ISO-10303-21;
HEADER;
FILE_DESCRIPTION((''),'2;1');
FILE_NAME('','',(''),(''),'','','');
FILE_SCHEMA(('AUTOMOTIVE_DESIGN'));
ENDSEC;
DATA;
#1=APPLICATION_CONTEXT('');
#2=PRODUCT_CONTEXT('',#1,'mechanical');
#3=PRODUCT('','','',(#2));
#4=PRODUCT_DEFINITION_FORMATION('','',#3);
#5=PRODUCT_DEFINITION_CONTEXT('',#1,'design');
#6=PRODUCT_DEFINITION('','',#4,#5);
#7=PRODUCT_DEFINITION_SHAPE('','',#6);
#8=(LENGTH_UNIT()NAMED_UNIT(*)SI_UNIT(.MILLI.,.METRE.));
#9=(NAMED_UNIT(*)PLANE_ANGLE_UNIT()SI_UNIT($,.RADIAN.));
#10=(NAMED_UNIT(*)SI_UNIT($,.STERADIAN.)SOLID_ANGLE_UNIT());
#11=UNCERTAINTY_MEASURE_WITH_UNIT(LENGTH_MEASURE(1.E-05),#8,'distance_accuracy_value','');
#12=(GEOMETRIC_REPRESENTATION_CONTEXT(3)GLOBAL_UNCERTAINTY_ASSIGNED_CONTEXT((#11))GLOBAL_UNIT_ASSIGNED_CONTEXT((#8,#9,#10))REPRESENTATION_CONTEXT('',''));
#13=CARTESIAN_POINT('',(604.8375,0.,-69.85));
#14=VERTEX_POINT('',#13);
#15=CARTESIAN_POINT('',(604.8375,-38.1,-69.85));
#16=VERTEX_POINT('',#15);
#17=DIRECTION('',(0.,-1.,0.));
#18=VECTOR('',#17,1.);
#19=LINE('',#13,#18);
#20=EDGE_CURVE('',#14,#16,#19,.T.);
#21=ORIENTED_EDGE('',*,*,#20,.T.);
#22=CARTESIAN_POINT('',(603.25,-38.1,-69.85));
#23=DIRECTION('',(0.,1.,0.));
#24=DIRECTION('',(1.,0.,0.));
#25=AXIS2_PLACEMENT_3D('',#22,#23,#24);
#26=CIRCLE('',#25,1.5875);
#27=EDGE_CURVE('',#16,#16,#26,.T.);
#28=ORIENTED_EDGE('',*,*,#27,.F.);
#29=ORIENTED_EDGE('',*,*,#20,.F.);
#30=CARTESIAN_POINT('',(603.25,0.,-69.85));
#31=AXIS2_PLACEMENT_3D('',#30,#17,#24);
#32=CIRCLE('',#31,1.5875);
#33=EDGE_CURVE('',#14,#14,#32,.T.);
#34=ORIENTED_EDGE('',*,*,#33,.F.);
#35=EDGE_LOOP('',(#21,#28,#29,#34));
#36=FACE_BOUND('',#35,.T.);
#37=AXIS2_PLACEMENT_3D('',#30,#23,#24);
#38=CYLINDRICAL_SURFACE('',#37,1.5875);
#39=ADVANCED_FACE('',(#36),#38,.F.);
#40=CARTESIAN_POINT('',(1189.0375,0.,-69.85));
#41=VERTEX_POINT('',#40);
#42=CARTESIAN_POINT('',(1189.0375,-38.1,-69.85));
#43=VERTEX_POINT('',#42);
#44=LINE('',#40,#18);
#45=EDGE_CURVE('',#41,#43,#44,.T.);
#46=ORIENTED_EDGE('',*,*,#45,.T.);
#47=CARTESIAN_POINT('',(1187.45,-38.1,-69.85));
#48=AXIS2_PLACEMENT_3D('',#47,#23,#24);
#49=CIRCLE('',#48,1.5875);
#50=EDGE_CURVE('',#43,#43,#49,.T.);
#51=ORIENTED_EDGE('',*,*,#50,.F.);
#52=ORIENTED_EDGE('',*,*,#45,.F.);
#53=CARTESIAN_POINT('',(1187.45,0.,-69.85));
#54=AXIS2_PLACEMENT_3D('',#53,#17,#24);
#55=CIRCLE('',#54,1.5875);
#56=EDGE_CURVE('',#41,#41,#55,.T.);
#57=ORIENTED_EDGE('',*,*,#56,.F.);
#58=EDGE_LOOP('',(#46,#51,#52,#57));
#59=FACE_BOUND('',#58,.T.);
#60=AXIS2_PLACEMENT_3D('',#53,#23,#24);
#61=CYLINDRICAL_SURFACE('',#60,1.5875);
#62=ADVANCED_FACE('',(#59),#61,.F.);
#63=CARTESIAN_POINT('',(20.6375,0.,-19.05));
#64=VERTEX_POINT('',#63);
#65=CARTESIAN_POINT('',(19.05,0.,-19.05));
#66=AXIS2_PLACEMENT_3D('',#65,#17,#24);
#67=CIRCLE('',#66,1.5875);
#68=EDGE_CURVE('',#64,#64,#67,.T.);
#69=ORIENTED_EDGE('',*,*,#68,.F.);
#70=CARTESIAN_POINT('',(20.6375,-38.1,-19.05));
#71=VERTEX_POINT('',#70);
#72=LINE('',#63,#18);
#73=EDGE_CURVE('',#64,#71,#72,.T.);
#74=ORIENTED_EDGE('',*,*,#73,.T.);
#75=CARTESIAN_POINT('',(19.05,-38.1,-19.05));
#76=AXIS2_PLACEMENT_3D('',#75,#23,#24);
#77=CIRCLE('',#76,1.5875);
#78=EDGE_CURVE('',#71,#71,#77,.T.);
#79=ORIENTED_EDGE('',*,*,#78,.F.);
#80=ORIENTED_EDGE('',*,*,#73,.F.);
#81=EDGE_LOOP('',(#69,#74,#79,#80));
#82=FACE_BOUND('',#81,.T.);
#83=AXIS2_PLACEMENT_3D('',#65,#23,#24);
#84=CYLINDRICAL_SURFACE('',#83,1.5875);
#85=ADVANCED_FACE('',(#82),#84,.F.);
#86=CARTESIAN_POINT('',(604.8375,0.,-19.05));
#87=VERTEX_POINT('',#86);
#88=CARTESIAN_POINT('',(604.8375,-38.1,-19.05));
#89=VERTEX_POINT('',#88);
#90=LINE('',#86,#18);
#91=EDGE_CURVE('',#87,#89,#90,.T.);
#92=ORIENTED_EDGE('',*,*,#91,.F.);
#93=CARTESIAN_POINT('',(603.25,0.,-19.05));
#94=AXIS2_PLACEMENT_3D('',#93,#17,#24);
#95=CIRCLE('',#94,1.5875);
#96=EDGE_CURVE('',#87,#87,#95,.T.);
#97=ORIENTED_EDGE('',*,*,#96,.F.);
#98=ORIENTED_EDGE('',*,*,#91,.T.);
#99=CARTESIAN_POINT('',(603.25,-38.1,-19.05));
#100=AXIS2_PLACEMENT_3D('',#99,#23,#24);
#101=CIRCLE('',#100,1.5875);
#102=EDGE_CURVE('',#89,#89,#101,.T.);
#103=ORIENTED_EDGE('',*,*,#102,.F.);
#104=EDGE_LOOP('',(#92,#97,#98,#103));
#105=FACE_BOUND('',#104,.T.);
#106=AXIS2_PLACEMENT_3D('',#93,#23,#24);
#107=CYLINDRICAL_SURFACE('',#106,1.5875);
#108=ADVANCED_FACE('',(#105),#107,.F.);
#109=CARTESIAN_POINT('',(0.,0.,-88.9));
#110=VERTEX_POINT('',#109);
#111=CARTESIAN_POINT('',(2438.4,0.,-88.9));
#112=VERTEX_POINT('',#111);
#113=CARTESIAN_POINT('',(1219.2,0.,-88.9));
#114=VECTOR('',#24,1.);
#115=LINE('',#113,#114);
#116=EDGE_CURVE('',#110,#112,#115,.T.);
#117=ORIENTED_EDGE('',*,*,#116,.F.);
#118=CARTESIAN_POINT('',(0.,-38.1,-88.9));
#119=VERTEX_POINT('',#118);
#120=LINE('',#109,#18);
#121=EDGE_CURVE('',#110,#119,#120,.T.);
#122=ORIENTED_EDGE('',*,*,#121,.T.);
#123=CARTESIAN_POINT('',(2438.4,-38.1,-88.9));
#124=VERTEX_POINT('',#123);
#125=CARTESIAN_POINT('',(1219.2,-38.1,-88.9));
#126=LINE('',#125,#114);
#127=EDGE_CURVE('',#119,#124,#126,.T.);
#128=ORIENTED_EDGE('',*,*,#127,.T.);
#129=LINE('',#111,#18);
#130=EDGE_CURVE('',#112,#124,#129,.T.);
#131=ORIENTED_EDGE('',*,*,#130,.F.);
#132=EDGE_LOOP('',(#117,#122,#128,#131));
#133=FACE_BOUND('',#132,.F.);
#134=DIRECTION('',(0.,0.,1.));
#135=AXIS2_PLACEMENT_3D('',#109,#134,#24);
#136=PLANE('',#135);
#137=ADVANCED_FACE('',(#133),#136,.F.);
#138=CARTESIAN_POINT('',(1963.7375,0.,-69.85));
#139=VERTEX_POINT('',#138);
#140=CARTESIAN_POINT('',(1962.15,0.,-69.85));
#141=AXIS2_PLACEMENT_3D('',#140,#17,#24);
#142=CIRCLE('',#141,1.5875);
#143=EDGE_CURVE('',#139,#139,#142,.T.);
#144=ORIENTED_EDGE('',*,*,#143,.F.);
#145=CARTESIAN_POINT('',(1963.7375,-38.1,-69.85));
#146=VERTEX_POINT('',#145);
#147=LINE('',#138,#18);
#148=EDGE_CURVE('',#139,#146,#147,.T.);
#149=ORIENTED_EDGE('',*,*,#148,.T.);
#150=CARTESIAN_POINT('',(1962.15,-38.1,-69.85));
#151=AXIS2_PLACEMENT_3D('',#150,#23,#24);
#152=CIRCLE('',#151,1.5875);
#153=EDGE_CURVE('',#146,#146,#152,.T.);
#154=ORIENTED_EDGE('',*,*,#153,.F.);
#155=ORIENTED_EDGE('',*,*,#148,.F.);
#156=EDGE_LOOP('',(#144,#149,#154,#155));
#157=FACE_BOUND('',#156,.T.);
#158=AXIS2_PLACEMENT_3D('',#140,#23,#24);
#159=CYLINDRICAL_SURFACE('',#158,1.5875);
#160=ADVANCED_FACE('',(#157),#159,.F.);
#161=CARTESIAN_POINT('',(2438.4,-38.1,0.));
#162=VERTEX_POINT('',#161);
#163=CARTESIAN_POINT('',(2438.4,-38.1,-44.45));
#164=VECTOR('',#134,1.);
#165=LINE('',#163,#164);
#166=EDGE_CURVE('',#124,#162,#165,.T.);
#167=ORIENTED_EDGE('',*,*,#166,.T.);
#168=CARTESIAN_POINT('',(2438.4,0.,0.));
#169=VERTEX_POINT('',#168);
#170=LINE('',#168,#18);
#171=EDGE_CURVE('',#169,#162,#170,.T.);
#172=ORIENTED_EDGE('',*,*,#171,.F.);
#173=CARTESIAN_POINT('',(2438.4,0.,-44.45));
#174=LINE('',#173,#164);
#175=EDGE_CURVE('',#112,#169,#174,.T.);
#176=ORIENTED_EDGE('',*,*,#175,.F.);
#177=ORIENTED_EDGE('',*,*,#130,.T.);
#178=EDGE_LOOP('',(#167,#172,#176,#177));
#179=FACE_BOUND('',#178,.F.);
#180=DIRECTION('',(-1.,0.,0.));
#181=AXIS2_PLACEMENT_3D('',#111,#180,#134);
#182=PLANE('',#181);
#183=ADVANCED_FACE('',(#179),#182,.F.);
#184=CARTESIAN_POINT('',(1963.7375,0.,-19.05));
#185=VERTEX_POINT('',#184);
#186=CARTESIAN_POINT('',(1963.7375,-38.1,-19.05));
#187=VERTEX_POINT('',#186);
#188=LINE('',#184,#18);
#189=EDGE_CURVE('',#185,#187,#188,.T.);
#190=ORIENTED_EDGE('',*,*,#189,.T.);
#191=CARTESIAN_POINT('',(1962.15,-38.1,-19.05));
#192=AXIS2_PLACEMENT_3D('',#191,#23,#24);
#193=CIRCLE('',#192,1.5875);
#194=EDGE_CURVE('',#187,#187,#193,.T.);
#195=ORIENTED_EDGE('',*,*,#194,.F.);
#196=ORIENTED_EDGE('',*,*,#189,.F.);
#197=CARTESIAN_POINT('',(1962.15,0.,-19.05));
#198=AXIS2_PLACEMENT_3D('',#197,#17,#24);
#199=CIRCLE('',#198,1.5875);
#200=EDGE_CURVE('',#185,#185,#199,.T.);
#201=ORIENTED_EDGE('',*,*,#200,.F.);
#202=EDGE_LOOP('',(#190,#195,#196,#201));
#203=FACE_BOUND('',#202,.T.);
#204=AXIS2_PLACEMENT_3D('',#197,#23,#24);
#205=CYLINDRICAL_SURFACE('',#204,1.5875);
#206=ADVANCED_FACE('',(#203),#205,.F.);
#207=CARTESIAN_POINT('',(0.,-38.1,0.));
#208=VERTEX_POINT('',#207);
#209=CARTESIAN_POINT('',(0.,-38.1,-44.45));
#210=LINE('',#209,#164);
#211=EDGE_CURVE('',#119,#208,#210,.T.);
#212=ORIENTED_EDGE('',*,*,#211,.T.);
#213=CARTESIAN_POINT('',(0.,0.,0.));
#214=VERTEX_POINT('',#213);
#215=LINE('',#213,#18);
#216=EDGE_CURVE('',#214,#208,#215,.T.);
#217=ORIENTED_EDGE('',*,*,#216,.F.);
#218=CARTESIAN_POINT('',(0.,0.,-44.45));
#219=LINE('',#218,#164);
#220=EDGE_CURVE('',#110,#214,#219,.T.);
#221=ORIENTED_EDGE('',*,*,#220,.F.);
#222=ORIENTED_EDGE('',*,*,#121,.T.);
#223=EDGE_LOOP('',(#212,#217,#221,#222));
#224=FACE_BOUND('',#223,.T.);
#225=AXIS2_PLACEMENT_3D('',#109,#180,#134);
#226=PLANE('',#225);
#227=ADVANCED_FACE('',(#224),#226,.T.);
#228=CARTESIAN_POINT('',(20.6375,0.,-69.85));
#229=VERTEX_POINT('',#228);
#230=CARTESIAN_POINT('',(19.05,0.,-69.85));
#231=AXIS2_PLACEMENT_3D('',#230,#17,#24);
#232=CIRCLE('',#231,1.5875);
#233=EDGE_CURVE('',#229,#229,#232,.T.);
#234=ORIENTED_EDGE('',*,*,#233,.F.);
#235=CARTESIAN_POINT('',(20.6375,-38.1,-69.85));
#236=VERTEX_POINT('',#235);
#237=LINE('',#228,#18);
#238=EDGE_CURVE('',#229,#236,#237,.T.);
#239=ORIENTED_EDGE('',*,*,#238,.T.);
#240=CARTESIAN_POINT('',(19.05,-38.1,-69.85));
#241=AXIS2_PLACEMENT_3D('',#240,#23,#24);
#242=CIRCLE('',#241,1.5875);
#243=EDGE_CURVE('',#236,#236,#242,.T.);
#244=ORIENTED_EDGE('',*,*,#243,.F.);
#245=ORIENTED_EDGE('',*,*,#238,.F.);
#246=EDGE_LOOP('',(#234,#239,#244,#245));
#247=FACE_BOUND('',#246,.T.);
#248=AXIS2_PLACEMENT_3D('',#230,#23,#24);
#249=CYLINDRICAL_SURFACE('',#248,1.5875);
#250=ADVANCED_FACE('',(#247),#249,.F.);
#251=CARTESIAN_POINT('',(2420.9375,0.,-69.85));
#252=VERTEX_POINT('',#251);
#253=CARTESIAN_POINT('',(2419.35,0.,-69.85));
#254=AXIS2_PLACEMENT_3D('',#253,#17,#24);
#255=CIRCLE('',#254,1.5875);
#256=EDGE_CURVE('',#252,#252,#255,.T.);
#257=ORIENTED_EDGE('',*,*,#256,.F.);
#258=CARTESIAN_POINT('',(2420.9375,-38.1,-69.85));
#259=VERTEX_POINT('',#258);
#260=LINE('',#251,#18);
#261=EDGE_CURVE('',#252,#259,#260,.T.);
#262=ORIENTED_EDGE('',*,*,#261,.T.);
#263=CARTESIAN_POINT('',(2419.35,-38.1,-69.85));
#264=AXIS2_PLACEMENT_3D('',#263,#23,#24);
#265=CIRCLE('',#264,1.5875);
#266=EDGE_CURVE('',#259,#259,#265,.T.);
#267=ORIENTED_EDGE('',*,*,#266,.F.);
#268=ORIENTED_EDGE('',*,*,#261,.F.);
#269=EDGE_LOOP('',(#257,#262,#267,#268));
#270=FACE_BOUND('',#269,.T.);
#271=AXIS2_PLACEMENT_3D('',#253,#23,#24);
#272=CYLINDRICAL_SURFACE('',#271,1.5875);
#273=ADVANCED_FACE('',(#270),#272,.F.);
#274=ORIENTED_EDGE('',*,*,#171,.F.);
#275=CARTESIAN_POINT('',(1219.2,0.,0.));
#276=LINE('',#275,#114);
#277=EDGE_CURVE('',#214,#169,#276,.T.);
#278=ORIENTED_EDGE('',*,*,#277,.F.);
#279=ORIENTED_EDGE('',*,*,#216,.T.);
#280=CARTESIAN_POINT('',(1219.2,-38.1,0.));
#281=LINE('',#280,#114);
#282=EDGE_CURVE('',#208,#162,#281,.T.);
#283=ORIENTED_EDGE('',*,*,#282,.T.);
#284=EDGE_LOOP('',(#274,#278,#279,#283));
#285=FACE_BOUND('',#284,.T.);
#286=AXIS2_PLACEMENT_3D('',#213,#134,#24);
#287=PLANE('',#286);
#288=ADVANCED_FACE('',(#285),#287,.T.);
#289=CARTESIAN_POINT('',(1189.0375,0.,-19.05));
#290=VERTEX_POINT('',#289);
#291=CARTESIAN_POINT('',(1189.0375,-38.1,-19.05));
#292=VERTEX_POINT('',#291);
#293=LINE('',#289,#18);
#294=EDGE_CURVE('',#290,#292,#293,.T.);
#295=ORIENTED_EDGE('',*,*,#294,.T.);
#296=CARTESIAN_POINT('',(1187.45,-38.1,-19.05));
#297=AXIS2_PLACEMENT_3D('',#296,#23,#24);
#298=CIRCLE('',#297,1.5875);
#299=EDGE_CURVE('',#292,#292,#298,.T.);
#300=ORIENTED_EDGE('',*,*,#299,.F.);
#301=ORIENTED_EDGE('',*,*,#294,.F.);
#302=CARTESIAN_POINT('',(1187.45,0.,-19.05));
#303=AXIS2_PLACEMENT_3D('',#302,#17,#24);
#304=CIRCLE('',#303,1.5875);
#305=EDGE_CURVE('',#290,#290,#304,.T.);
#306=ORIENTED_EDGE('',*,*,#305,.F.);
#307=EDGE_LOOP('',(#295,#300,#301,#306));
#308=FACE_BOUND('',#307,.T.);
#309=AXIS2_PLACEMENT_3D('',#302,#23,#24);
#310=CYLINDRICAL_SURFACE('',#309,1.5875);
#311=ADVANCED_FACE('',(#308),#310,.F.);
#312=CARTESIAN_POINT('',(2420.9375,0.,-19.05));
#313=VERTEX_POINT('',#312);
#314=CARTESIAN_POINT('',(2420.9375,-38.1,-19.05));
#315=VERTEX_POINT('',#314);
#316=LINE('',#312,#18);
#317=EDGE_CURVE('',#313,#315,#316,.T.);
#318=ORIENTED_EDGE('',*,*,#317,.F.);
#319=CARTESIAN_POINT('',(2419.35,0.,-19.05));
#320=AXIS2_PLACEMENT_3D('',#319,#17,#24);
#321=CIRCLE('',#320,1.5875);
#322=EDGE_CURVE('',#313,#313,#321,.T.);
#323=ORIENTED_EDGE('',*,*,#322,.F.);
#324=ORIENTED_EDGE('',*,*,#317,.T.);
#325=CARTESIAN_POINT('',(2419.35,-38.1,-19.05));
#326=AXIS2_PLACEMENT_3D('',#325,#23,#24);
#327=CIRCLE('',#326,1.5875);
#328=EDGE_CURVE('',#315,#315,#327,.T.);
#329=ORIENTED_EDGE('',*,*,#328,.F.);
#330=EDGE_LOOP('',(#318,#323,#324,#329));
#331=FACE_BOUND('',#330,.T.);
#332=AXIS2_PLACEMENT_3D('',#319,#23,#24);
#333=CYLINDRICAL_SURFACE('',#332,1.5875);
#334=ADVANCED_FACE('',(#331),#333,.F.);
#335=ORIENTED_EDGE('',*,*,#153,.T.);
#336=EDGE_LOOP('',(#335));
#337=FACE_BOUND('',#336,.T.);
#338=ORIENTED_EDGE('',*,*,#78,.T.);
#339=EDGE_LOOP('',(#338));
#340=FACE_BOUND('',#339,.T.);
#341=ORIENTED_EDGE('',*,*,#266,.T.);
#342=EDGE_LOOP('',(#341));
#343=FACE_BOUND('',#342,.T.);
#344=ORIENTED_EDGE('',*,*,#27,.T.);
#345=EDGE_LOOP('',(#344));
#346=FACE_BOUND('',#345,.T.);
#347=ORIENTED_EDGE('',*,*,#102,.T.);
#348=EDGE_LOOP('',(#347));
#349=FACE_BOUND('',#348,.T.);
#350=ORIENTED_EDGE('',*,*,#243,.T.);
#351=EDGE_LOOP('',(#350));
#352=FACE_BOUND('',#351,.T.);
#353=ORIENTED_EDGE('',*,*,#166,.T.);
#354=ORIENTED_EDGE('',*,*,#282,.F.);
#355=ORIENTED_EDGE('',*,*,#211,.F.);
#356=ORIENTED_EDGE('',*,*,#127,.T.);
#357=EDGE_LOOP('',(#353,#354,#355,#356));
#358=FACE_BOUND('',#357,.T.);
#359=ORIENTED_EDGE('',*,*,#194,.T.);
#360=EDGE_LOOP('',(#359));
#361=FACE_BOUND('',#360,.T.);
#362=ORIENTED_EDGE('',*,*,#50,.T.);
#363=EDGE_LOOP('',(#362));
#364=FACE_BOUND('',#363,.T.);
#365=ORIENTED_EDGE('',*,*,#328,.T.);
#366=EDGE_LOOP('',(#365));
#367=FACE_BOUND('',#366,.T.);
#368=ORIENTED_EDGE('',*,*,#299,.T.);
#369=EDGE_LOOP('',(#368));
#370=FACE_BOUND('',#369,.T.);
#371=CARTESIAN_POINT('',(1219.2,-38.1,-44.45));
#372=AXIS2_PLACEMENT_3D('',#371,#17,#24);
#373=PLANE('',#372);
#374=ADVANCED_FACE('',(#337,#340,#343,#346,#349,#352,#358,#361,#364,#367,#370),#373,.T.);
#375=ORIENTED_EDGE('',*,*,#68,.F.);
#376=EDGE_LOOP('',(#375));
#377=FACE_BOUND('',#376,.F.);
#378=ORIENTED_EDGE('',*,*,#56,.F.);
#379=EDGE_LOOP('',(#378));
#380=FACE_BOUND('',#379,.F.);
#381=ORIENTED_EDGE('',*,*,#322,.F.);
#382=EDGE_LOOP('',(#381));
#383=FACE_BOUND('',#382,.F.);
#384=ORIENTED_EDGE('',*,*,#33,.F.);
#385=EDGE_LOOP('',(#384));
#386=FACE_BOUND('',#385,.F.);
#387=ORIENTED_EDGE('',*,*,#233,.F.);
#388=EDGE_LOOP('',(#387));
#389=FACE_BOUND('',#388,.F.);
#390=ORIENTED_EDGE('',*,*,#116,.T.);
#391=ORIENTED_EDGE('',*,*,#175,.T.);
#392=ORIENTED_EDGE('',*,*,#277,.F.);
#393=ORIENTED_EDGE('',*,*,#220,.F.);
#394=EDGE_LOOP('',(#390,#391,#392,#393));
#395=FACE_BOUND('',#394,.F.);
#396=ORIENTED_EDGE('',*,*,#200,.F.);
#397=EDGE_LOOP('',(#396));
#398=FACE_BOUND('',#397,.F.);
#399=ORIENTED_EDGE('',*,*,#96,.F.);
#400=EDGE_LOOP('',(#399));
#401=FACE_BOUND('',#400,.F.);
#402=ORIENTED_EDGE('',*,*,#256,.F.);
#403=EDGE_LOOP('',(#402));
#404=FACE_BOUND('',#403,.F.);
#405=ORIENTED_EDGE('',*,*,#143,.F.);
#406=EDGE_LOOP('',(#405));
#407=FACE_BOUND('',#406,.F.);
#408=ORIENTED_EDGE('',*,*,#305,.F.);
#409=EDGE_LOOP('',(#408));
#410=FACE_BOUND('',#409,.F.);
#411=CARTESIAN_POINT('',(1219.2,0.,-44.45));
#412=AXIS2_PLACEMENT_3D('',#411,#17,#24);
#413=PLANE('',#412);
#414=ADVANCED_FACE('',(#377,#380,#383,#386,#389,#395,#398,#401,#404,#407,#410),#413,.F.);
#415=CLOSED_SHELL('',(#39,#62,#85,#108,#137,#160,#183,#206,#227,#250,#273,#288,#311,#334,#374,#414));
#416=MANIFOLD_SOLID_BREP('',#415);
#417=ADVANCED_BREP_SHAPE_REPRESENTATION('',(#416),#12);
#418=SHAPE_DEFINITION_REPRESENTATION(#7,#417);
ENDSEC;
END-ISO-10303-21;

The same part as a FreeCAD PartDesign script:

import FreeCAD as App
import Part
import Sketcher

V = App.Vector
Q = App.Units.Quantity


def add_polygon(sketch, points):
    """Adds a closed chain of lines whose ends are joined by coincident constraints."""
    first, n = sketch.GeometryCount, len(points)
    for a, b in zip(points, points[1:] + points[:1]):
        sketch.addGeometry(Part.LineSegment(App.Vector(*a, 0), App.Vector(*b, 0)), False)
    for i in range(n):
        sketch.addConstraint(Sketcher.Constraint("Coincident", first + i, 2, first + (i + 1) % n, 1))

doc = App.newDocument("Part")
body = doc.addObject("PartDesign::Body", "Body")

sketch1 = body.newObject("Sketcher::SketchObject", "Sketch")
sketch1.AttachmentSupport = (doc.getObject("XZ_Plane"), [""])
sketch1.MapMode = "FlatFace"
add_polygon(sketch1, [(0, 0), (0, -89), (2438, -89), (2438, 0)])
sketch1.addConstraint([
    Sketcher.Constraint("Vertical", 0),
    Sketcher.Constraint("Horizontal", 1),
    Sketcher.Constraint("Vertical", 2),
    Sketcher.Constraint("Horizontal", 3),
    Sketcher.Constraint("Coincident", 3, 2, -1, 1),
    Sketcher.Constraint("DistanceX", 1, 1, 1, 2, Q("96 in")),
    Sketcher.Constraint("DistanceY", 0, 2, 0, 1, Q("3.5 in")),
])
pad1 = body.newObject("PartDesign::Pad", "Pad")
pad1.Profile = sketch1
pad1.Length = Q("1.5 in")

sketch2 = body.newObject("Sketcher::SketchObject", "Sketch001")
sketch2.AttachmentSupport = (doc.getObject("XZ_Plane"), [""])
sketch2.MapMode = "FlatFace"
sketch2.addGeometry([
    Part.Circle(V(19.1, -19.1, 0), V(0, 0, 1), 1.6),
    Part.Circle(V(19.1, -69.8, 0), V(0, 0, 1), 1.6),
    Part.Circle(V(2419.3, -19.1, 0), V(0, 0, 1), 1.6),
    Part.Circle(V(2419.3, -69.8, 0), V(0, 0, 1), 1.6),
    Part.Circle(V(4819.6, -19.1, 0), V(0, 0, 1), 1.6),
    Part.Circle(V(4819.6, -69.8, 0), V(0, 0, 1), 1.6),
], False)
sketch2.addConstraint([
    Sketcher.Constraint("Equal", 0, 1),
    Sketcher.Constraint("Equal", 1, 2),
    Sketcher.Constraint("Equal", 2, 3),
    Sketcher.Constraint("Equal", 3, 4),
    Sketcher.Constraint("Equal", 4, 5),
    Sketcher.Constraint("Horizontal", 0, 3, 2, 3),
    Sketcher.Constraint("Horizontal", 1, 3, 3, 3),
    Sketcher.Constraint("Horizontal", 2, 3, 4, 3),
    Sketcher.Constraint("Horizontal", 3, 3, 5, 3),
    Sketcher.Constraint("Vertical", 0, 3, 1, 3),
    Sketcher.Constraint("Vertical", 2, 3, 3, 3),
    Sketcher.Constraint("Vertical", 4, 3, 5, 3),
    Sketcher.Constraint("Diameter", 0, Q("0.125 in")),
    Sketcher.Constraint("DistanceY", 1, 3, 0, 3, Q("2 in")),
    Sketcher.Constraint("DistanceX", 0, 3, 4, 3, Q("189 in")),
    Sketcher.Constraint("DistanceX", 0, 3, 2, 3, Q("94.5 in")),
    Sketcher.Constraint("DistanceX", -1, 1, 0, 3, Q("0.75 in")),
    Sketcher.Constraint("DistanceY", 0, 3, -1, 1, Q("0.75 in")),
])
pocket1 = body.newObject("PartDesign::Pocket", "Pocket")
pocket1.Profile = sketch2
pocket1.Type = "ThroughAll"
pocket1.Reversed = True

sketch3 = body.newObject("Sketcher::SketchObject", "Sketch002")
sketch3.AttachmentSupport = (doc.getObject("XZ_Plane"), [""])
sketch3.MapMode = "FlatFace"
sketch3.addGeometry([
    Part.Circle(V(1187.5, -19.1, 0), V(0, 0, 1), 1.6),
    Part.Circle(V(1187.5, -69.8, 0), V(0, 0, 1), 1.6),
    Part.Circle(V(1962.2, -19.1, 0), V(0, 0, 1), 1.6),
    Part.Circle(V(1962.2, -69.8, 0), V(0, 0, 1), 1.6),
], False)
sketch3.addConstraint([
    Sketcher.Constraint("Equal", 0, 1),
    Sketcher.Constraint("Equal", 1, 2),
    Sketcher.Constraint("Equal", 2, 3),
    Sketcher.Constraint("Horizontal", 0, 3, 2, 3),
    Sketcher.Constraint("Horizontal", 1, 3, 3, 3),
    Sketcher.Constraint("Vertical", 0, 3, 1, 3),
    Sketcher.Constraint("Vertical", 2, 3, 3, 3),
    Sketcher.Constraint("Diameter", 0, Q("0.125 in")),
    Sketcher.Constraint("DistanceY", 1, 3, 0, 3, Q("2 in")),
    Sketcher.Constraint("DistanceX", 0, 3, 2, 3, Q("30.5 in")),
    Sketcher.Constraint("DistanceX", -1, 1, 0, 3, Q("46.75 in")),
    Sketcher.Constraint("DistanceY", 0, 3, -1, 1, Q("0.75 in")),
])
pocket2 = body.newObject("PartDesign::Pocket", "Pocket001")
pocket2.Profile = sketch3
pocket2.Type = "ThroughAll"
pocket2.Reversed = True

sketch4 = body.newObject("Sketcher::SketchObject", "Sketch003")
sketch4.AttachmentSupport = (doc.getObject("XZ_Plane"), [""])
sketch4.MapMode = "FlatFace"
sketch4.addGeometry([
    Part.Circle(V(603.2, -19.1, 0), V(0, 0, 1), 1.6),
    Part.Circle(V(603.2, -69.8, 0), V(0, 0, 1), 1.6),
], False)
sketch4.addConstraint([
    Sketcher.Constraint("Equal", 0, 1),
    Sketcher.Constraint("Vertical", 0, 3, 1, 3),
    Sketcher.Constraint("Diameter", 0, Q("0.125 in")),
    Sketcher.Constraint("DistanceY", 1, 3, 0, 3, Q("2 in")),
    Sketcher.Constraint("DistanceX", -1, 1, 0, 3, Q("23.75 in")),
    Sketcher.Constraint("DistanceY", 0, 3, -1, 1, Q("0.75 in")),
])
pocket3 = body.newObject("PartDesign::Pocket", "Pocket002")
pocket3.Profile = sketch4
pocket3.Type = "ThroughAll"
pocket3.Reversed = True

doc.recompute()
